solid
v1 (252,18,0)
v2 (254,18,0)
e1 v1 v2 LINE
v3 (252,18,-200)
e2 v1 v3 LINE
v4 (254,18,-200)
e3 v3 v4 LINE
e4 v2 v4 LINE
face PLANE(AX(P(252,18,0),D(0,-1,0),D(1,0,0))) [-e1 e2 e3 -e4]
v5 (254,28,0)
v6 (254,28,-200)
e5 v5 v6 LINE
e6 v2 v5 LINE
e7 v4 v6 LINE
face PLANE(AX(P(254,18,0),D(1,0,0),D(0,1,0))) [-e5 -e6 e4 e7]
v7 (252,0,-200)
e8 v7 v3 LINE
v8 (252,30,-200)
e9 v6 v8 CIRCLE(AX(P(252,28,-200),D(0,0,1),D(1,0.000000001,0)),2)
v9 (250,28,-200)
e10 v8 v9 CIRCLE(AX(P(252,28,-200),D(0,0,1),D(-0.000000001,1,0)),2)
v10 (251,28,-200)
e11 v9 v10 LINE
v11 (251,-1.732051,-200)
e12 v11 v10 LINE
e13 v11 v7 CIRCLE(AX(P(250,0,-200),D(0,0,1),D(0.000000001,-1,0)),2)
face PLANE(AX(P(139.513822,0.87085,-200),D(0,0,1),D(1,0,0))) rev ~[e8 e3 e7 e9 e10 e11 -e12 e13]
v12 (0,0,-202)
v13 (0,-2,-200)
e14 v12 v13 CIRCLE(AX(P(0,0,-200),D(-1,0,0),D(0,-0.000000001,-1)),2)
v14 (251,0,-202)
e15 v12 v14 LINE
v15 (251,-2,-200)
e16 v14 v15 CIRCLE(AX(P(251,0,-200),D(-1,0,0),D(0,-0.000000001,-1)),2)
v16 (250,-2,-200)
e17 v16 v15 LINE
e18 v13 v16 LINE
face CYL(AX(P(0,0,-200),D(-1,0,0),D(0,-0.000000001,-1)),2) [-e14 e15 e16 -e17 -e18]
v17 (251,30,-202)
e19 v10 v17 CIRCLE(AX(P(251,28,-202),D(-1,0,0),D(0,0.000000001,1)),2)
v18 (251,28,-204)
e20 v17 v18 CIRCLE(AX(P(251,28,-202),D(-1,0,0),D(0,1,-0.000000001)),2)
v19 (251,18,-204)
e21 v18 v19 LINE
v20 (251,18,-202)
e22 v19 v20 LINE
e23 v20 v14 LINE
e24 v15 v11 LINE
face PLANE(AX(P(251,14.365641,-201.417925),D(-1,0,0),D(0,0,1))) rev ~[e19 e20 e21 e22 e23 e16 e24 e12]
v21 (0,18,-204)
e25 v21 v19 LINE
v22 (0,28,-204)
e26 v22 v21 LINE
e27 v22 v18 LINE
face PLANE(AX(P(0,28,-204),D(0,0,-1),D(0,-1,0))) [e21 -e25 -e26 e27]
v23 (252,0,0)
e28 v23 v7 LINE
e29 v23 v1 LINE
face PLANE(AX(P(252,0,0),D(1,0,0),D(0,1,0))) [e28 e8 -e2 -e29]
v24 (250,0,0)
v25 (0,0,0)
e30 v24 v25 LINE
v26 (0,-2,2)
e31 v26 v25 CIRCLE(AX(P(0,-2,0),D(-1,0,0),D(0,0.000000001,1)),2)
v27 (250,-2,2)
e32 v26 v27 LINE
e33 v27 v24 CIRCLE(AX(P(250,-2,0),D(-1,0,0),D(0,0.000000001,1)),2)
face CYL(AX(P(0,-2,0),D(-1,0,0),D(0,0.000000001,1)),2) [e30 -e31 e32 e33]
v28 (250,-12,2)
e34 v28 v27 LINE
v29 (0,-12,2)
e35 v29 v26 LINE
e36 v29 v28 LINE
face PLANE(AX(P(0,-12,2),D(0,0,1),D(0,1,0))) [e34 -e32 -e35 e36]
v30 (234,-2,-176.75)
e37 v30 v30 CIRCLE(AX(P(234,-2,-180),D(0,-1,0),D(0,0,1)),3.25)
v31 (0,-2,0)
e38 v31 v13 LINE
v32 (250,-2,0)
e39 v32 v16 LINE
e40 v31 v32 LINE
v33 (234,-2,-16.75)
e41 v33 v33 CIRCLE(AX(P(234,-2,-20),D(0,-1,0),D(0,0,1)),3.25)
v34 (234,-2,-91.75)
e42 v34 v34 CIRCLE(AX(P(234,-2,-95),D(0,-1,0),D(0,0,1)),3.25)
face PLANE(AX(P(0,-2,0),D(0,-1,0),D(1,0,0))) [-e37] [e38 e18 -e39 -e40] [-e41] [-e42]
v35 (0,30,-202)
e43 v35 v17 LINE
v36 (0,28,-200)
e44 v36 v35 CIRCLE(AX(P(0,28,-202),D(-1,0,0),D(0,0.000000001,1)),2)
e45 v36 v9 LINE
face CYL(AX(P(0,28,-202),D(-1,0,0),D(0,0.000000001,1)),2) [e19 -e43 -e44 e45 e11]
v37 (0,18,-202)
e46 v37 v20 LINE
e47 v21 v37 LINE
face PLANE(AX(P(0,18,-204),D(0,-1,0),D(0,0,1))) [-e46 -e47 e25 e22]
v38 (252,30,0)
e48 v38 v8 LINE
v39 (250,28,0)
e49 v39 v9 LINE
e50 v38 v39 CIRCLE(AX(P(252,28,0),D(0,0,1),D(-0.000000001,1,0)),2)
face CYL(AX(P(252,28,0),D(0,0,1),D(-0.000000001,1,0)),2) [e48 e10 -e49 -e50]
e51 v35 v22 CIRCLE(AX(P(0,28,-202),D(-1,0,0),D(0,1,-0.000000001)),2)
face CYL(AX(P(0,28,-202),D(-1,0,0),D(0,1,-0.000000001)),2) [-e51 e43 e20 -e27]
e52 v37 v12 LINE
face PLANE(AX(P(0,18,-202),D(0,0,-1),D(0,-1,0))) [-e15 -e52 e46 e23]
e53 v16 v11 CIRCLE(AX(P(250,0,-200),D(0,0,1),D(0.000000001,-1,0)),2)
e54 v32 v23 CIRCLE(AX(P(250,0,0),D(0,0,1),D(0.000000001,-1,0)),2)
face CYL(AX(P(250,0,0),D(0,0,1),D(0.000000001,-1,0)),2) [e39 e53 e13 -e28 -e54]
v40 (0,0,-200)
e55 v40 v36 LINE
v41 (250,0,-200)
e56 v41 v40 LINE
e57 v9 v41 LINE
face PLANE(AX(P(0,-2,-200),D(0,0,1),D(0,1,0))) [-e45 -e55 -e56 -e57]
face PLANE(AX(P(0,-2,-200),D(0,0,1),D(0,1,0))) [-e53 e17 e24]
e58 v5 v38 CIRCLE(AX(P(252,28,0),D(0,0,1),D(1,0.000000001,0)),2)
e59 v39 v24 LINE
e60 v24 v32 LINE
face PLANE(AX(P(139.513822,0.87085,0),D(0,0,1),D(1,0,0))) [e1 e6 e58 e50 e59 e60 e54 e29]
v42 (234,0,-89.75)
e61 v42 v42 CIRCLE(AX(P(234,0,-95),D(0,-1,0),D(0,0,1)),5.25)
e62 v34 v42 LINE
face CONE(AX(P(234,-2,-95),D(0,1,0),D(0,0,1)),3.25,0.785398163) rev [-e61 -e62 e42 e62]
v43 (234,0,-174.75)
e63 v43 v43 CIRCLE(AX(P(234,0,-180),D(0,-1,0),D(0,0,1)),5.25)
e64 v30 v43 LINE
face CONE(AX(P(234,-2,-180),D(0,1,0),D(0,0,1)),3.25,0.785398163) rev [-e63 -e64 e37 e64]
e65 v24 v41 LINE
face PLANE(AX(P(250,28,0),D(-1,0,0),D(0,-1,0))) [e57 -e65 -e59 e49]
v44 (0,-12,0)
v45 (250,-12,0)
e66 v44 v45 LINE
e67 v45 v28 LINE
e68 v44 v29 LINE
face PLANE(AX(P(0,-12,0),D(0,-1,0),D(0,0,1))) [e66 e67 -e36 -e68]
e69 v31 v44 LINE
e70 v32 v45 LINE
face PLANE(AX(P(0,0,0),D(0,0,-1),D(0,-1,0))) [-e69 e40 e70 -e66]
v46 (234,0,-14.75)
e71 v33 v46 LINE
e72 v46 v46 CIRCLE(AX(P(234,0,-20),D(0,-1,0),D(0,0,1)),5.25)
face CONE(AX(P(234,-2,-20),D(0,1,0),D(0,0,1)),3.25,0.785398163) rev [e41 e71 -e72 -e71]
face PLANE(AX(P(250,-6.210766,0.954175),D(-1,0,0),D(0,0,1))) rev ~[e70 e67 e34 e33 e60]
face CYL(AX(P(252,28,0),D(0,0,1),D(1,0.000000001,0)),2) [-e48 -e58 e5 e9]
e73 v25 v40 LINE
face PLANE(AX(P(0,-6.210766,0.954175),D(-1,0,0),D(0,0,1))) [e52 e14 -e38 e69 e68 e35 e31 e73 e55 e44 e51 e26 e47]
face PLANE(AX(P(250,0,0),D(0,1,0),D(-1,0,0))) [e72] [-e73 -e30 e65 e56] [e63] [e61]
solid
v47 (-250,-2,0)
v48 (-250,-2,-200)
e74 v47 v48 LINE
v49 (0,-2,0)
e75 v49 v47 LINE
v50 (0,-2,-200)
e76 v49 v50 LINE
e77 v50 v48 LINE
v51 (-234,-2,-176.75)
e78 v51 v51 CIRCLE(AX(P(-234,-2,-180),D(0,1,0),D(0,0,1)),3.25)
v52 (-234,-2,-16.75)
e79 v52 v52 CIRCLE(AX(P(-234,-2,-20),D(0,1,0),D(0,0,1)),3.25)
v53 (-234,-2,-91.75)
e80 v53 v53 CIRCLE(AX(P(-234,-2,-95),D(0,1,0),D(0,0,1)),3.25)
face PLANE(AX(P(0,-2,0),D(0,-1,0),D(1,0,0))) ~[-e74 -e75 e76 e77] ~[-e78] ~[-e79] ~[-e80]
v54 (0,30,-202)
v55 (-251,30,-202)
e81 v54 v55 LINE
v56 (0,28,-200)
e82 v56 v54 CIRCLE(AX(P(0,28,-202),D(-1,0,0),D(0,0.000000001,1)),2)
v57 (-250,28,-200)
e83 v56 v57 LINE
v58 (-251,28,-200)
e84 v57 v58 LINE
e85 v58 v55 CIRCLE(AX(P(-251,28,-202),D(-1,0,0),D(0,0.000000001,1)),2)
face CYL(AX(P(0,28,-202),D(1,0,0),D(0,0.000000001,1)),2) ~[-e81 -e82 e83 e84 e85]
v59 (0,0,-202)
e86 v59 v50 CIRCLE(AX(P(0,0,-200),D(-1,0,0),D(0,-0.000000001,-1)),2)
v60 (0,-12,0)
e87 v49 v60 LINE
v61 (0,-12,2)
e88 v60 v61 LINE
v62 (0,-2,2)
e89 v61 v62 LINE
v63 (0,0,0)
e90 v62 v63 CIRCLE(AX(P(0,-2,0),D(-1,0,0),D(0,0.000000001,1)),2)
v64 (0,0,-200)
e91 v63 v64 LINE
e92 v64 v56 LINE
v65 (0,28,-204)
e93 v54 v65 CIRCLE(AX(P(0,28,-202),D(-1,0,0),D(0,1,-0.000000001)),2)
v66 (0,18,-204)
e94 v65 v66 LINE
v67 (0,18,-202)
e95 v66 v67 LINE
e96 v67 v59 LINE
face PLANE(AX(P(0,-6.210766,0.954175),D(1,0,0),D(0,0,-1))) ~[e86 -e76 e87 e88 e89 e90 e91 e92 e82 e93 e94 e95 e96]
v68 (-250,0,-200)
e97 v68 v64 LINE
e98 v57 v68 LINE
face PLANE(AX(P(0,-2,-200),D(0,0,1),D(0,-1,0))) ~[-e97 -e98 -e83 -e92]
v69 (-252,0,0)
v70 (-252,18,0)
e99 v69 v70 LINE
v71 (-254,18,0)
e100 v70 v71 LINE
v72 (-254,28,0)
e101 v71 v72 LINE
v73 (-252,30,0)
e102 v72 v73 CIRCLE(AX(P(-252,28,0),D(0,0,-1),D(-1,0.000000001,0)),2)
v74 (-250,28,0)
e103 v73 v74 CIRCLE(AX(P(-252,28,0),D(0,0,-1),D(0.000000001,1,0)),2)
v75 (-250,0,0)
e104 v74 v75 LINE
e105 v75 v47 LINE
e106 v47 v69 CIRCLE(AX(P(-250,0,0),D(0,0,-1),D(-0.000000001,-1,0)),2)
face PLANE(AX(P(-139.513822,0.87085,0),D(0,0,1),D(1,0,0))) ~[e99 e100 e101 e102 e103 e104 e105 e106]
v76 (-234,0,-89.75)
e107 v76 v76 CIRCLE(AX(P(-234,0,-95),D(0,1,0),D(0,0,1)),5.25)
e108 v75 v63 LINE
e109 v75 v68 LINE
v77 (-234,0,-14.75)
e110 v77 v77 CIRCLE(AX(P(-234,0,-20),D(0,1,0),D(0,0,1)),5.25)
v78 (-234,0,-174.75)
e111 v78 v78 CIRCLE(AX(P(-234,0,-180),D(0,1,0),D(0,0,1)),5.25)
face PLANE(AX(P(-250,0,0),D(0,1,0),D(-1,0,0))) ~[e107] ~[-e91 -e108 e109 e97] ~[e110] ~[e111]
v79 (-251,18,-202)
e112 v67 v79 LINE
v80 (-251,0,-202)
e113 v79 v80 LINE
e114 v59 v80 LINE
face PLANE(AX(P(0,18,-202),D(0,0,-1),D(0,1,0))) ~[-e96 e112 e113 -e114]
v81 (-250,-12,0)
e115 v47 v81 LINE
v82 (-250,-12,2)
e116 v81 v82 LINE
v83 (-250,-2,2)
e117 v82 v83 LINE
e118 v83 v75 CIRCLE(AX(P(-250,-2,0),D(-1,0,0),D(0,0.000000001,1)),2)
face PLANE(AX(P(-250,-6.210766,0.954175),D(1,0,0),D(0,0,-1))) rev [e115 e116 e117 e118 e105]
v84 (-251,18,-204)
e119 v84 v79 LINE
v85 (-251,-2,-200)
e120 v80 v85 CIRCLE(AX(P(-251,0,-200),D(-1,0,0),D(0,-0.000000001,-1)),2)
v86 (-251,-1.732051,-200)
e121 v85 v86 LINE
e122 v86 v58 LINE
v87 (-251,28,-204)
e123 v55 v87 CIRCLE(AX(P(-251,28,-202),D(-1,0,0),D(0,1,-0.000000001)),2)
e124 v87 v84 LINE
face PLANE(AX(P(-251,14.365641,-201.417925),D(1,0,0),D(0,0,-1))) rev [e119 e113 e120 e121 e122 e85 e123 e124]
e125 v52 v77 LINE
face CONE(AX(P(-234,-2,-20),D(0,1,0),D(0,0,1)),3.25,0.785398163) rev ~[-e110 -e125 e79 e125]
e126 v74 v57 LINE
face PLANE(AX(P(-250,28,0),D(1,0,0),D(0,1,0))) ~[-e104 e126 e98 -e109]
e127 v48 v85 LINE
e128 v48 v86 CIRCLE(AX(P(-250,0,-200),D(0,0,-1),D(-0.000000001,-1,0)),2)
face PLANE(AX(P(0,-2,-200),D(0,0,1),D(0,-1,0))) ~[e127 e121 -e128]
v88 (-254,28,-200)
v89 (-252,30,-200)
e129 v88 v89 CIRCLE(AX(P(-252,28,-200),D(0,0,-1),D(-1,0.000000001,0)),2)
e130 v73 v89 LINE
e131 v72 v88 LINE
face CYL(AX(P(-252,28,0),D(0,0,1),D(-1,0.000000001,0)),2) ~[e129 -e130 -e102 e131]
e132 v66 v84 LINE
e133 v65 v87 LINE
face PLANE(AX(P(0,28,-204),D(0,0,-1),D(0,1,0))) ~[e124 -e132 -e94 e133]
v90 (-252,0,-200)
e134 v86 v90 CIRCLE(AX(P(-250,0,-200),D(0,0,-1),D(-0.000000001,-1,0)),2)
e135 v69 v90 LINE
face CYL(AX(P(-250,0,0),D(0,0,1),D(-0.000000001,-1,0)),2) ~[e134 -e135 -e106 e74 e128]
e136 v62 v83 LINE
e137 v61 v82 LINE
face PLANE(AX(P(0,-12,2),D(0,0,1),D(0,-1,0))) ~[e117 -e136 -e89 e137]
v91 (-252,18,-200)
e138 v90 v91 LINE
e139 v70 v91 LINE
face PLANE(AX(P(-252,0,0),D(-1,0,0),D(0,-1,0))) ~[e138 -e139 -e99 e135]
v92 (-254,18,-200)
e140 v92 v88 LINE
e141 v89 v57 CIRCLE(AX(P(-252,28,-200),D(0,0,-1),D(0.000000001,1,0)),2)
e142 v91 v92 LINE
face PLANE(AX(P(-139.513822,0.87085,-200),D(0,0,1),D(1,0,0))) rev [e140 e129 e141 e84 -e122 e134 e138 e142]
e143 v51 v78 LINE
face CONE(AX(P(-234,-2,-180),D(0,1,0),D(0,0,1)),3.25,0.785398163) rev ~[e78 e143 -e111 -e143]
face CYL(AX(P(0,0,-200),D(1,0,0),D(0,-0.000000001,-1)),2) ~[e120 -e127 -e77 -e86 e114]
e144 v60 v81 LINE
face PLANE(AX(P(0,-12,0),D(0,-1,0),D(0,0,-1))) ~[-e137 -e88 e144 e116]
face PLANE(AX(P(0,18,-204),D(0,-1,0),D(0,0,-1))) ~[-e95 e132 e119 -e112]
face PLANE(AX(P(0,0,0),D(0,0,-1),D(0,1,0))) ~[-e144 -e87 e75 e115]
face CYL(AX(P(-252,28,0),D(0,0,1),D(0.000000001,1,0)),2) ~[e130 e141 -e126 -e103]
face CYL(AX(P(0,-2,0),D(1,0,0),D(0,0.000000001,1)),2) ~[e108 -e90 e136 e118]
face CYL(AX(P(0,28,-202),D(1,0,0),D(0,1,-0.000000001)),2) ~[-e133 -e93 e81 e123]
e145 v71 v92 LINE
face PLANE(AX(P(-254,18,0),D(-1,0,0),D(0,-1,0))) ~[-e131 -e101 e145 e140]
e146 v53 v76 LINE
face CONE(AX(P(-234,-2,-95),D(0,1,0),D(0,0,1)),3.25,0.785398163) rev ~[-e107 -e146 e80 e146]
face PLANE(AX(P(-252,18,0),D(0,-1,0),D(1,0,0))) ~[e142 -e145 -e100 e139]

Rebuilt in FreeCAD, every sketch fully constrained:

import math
import FreeCAD as App
import Part
import Sketcher
from FreeCAD import Vector
Q = App.Units.Quantity

doc = App.newDocument("Part")
body = doc.addObject("PartDesign::Body", "Body")

sketch1 = doc.addObject("Sketcher::SketchObject", "Sketch")
body.addObject(sketch1)
sketch1.AttachmentSupport = (doc.XY_Plane, [""])
sketch1.MapMode = "FlatFace"
sketch1.addGeometry([
    Part.LineSegment(Vector(0, 0, 0), Vector(0, -2, 0)),
    Part.LineSegment(Vector(0, -2, 0), Vector(250, -2, 0)),
    Part.ArcOfCircle(Part.Circle(Vector(250, 0, 0), Vector(0, 0, 1), 2), math.radians(-90), math.radians(0)),
    Part.LineSegment(Vector(252, 0, 0), Vector(252, 18, 0)),
    Part.LineSegment(Vector(252, 18, 0), Vector(254, 18, 0)),
    Part.LineSegment(Vector(254, 18, 0), Vector(254, 28, 0)),
    Part.ArcOfCircle(Part.Circle(Vector(252, 28, 0), Vector(0, 0, 1), 2), math.radians(0), math.radians(90)),
    Part.ArcOfCircle(Part.Circle(Vector(252, 28, 0), Vector(0, 0, 1), 2), math.radians(90), math.radians(180)),
    Part.LineSegment(Vector(250, 28, 0), Vector(250, 0, 0)),
    Part.LineSegment(Vector(250, 0, 0), Vector(0, 0, 0)),
], False)
sketch1.addConstraint([
    Sketcher.Constraint("Coincident", 0, 2, 1, 1),
    Sketcher.Constraint("Tangent", 1, 2, 2, 1),
    Sketcher.Constraint("Tangent", 2, 2, 3, 1),
    Sketcher.Constraint("Coincident", 3, 2, 4, 1),
    Sketcher.Constraint("Coincident", 4, 2, 5, 1),
    Sketcher.Constraint("Tangent", 5, 2, 6, 1),
    Sketcher.Constraint("Tangent", 6, 2, 7, 1),
    Sketcher.Constraint("Tangent", 7, 2, 8, 1),
    Sketcher.Constraint("Coincident", 8, 2, 9, 1),
    Sketcher.Constraint("Coincident", 9, 2, 0, 1),
    Sketcher.Constraint("Vertical", 0),
    Sketcher.Constraint("Horizontal", 1),
    Sketcher.Constraint("Vertical", 3),
    Sketcher.Constraint("Horizontal", 4),
    Sketcher.Constraint("Vertical", 5),
    Sketcher.Constraint("Vertical", 8),
    Sketcher.Constraint("Horizontal", 9),
    Sketcher.Constraint("Coincident", 9, 2, -1, 1),
    Sketcher.Constraint("Coincident", 8, 2, 2, 3),
    Sketcher.Constraint("Equal", 2, 6),
    Sketcher.Constraint("Equal", 6, 7),
    Sketcher.Constraint("Vertical", 3, 2, 6, 2),
    Sketcher.Constraint("Radius", 2, 2.0),
    Sketcher.Constraint("DistanceX", 1, 1, 1, 2, 250.0),
    Sketcher.Constraint("DistanceY", 3, 1, 3, 2, 18.0),
    Sketcher.Constraint("DistanceY", 5, 1, 5, 2, 10.0),
])
pad1 = doc.addObject("PartDesign::Pad", "Pad")
body.addObject(pad1)
pad1.Profile = sketch1
pad1.Length = 200
pad1.Reversed = True

sketch2 = doc.addObject("Sketcher::SketchObject", "Sketch001")
body.addObject(sketch2)
sketch2.AttachmentSupport = (doc.YZ_Plane, [""])
sketch2.MapMode = "FlatFace"
sketch2.addGeometry([
    Part.LineSegment(Vector(-2, -200, 0), Vector(28, -200, 0)),
    Part.ArcOfCircle(Part.Circle(Vector(28, -202, 0), Vector(0, 0, 1), 2), math.radians(0), math.radians(90)),
    Part.ArcOfCircle(Part.Circle(Vector(28, -202, 0), Vector(0, 0, 1), 2), math.radians(-90), math.radians(0)),
    Part.LineSegment(Vector(28, -204, 0), Vector(18, -204, 0)),
    Part.LineSegment(Vector(18, -204, 0), Vector(18, -202, 0)),
    Part.LineSegment(Vector(18, -202, 0), Vector(0, -202, 0)),
    Part.ArcOfCircle(Part.Circle(Vector(0, -200, 0), Vector(0, 0, 1), 2), math.radians(-180), math.radians(-90)),
], False)
sketch2.addConstraint([
    Sketcher.Constraint("Tangent", 0, 2, 1, 2),
    Sketcher.Constraint("Tangent", 1, 1, 2, 2),
    Sketcher.Constraint("Tangent", 2, 1, 3, 1),
    Sketcher.Constraint("Coincident", 3, 2, 4, 1),
    Sketcher.Constraint("Coincident", 4, 2, 5, 1),
    Sketcher.Constraint("Tangent", 5, 2, 6, 2),
    Sketcher.Constraint("Coincident", 6, 1, 0, 1),
    Sketcher.Constraint("Horizontal", 0),
    Sketcher.Constraint("Horizontal", 3),
    Sketcher.Constraint("Vertical", 4),
    Sketcher.Constraint("Horizontal", 5),
    Sketcher.Constraint("Equal", 1, 2),
    Sketcher.Constraint("Equal", 2, 6),
    Sketcher.Constraint("PointOnObject", 6, 3, -2),
    Sketcher.Constraint("Horizontal", 6, 3, 0, 2),
    Sketcher.Constraint("Horizontal", 2, 3, 1, 1),
    Sketcher.Constraint("Radius", 1, 2.0),
    Sketcher.Constraint("DistanceX", 0, 1, 0, 2, 30.0),
    Sketcher.Constraint("DistanceX", 3, 2, 3, 1, 10.0),
    Sketcher.Constraint("DistanceY", 1, 3, -1, 1, 202.0),
])
pad2 = doc.addObject("PartDesign::Pad", "Pad001")
body.addObject(pad2)
pad2.Profile = sketch2
pad2.Length = 251

sketch3 = doc.addObject("Sketcher::SketchObject", "Sketch002")
body.addObject(sketch3)
sketch3.AttachmentSupport = (doc.YZ_Plane, [""])
sketch3.MapMode = "FlatFace"
sketch3.addGeometry([
    Part.LineSegment(Vector(0, 0, 0), Vector(-12, 0, 0)),
    Part.LineSegment(Vector(-12, 0, 0), Vector(-12, 2, 0)),
    Part.LineSegment(Vector(-12, 2, 0), Vector(-2, 2, 0)),
    Part.ArcOfCircle(Part.Circle(Vector(-2, 0, 0), Vector(0, 0, 1), 2), math.radians(0), math.radians(90)),
], False)
sketch3.addConstraint([
    Sketcher.Constraint("Coincident", 0, 2, 1, 1),
    Sketcher.Constraint("Coincident", 1, 2, 2, 1),
    Sketcher.Constraint("Tangent", 2, 2, 3, 2),
    Sketcher.Constraint("Coincident", 3, 1, 0, 1),
    Sketcher.Constraint("Horizontal", 0),
    Sketcher.Constraint("Vertical", 1),
    Sketcher.Constraint("Horizontal", 2),
    Sketcher.Constraint("Coincident", 3, 1, -1, 1),
    Sketcher.Constraint("PointOnObject", 3, 3, -1),
    Sketcher.Constraint("Radius", 3, 2.0),
    Sketcher.Constraint("DistanceX", 0, 2, 0, 1, 12.0),
])
pad3 = doc.addObject("PartDesign::Pad", "Pad002")
body.addObject(pad3)
pad3.Profile = sketch3
pad3.Length = 250

sketch4 = doc.addObject("Sketcher::SketchObject", "Sketch003")
body.addObject(sketch4)
sketch4.AttachmentSupport = (doc.YZ_Plane, [""])
sketch4.MapMode = "FlatFace"
sketch4.AttachmentOffset = App.Placement(Vector(0, 0, 234), App.Rotation())
sketch4.addGeometry([
    Part.LineSegment(Vector(-2, -20, 0), Vector(0, -20, 0)),
    Part.LineSegment(Vector(0, -20, 0), Vector(0, -25.2, 0)),
    Part.LineSegment(Vector(0, -25.2, 0), Vector(-2, -23.2, 0)),
    Part.LineSegment(Vector(-2, -23.2, 0), Vector(-2, -20, 0)),
], False)
sketch4.addGeometry(Part.LineSegment(Vector(0, -20, 0), Vector(-2, -20, 0)), True)
sketch4.addConstraint([
    Sketcher.Constraint("Coincident", 0, 2, 1, 1),
    Sketcher.Constraint("Coincident", 1, 2, 2, 1),
    Sketcher.Constraint("Coincident", 2, 2, 3, 1),
    Sketcher.Constraint("Coincident", 3, 2, 0, 1),
    Sketcher.Constraint("Horizontal", 0),
    Sketcher.Constraint("Vertical", 1),
    Sketcher.Constraint("Vertical", 3),
    Sketcher.Constraint("Horizontal", 4),
    Sketcher.Constraint("Coincident", 4, 1, 0, 2),
    Sketcher.Constraint("PointOnObject", 0, 2, -2),
    Sketcher.Constraint("Vertical", 2, 2, 4, 2),
    Sketcher.Constraint("DistanceX", 0, 1, 0, 2, 2.0),
    Sketcher.Constraint("Angle", 2, Q("135 deg")),
    Sketcher.Constraint("DistanceY", 0, 2, -1, 1, 20.0),
    Sketcher.Constraint("DistanceY", 1, 2, 1, 1, 5.25),
])
groove = doc.addObject("PartDesign::Groove", "Groove")
body.addObject(groove)
groove.Profile = sketch4
groove.ReferenceAxis = (sketch4, ["Axis0"])
groove.Angle = 360

sketch5 = doc.addObject("Sketcher::SketchObject", "Sketch004")
body.addObject(sketch5)
sketch5.AttachmentSupport = (doc.YZ_Plane, [""])
sketch5.MapMode = "FlatFace"
sketch5.AttachmentOffset = App.Placement(Vector(0, 0, 234), App.Rotation())
sketch5.addGeometry([
    Part.LineSegment(Vector(-2, -180, 0), Vector(0, -180, 0)),
    Part.LineSegment(Vector(0, -180, 0), Vector(0, -185.2, 0)),
    Part.LineSegment(Vector(0, -185.2, 0), Vector(-2, -183.2, 0)),
    Part.LineSegment(Vector(-2, -183.2, 0), Vector(-2, -180, 0)),
], False)
sketch5.addGeometry(Part.LineSegment(Vector(0, -180, 0), Vector(-2, -180, 0)), True)
sketch5.addConstraint([
    Sketcher.Constraint("Coincident", 0, 2, 1, 1),
    Sketcher.Constraint("Coincident", 1, 2, 2, 1),
    Sketcher.Constraint("Coincident", 2, 2, 3, 1),
    Sketcher.Constraint("Coincident", 3, 2, 0, 1),
    Sketcher.Constraint("Horizontal", 0),
    Sketcher.Constraint("Vertical", 1),
    Sketcher.Constraint("Vertical", 3),
    Sketcher.Constraint("Horizontal", 4),
    Sketcher.Constraint("Coincident", 4, 1, 0, 2),
    Sketcher.Constraint("PointOnObject", 0, 2, -2),
    Sketcher.Constraint("Vertical", 2, 2, 4, 2),
    Sketcher.Constraint("DistanceX", 0, 1, 0, 2, 2.0),
    Sketcher.Constraint("Angle", 2, Q("135 deg")),
    Sketcher.Constraint("DistanceY", 0, 2, -1, 1, 180.0),
    Sketcher.Constraint("DistanceY", 1, 2, 1, 1, 5.25),
])
groove2 = doc.addObject("PartDesign::Groove", "Groove001")
body.addObject(groove2)
groove2.Profile = sketch5
groove2.ReferenceAxis = (sketch5, ["Axis0"])
groove2.Angle = 360

sketch6 = doc.addObject("Sketcher::SketchObject", "Sketch005")
body.addObject(sketch6)
sketch6.AttachmentSupport = (doc.YZ_Plane, [""])
sketch6.MapMode = "FlatFace"
sketch6.AttachmentOffset = App.Placement(Vector(0, 0, 234), App.Rotation())
sketch6.addGeometry([
    Part.LineSegment(Vector(-2, -95, 0), Vector(0, -95, 0)),
    Part.LineSegment(Vector(0, -95, 0), Vector(0, -100.2, 0)),
    Part.LineSegment(Vector(0, -100.2, 0), Vector(-2, -98.2, 0)),
    Part.LineSegment(Vector(-2, -98.2, 0), Vector(-2, -95, 0)),
], False)
sketch6.addGeometry(Part.LineSegment(Vector(0, -95, 0), Vector(-2, -95, 0)), True)
sketch6.addConstraint([
    Sketcher.Constraint("Coincident", 0, 2, 1, 1),
    Sketcher.Constraint("Coincident", 1, 2, 2, 1),
    Sketcher.Constraint("Coincident", 2, 2, 3, 1),
    Sketcher.Constraint("Coincident", 3, 2, 0, 1),
    Sketcher.Constraint("Horizontal", 0),
    Sketcher.Constraint("Vertical", 1),
    Sketcher.Constraint("Vertical", 3),
    Sketcher.Constraint("Horizontal", 4),
    Sketcher.Constraint("Coincident", 4, 1, 0, 2),
    Sketcher.Constraint("PointOnObject", 0, 2, -2),
    Sketcher.Constraint("Vertical", 2, 2, 4, 2),
    Sketcher.Constraint("DistanceX", 0, 1, 0, 2, 2.0),
    Sketcher.Constraint("Angle", 2, Q("135 deg")),
    Sketcher.Constraint("DistanceY", 0, 2, -1, 1, 95.0),
    Sketcher.Constraint("DistanceY", 1, 2, 1, 1, 5.25),
])
groove3 = doc.addObject("PartDesign::Groove", "Groove002")
body.addObject(groove3)
groove3.Profile = sketch6
groove3.ReferenceAxis = (sketch6, ["Axis0"])
groove3.Angle = 360
body2 = doc.addObject("PartDesign::Body", "Body001")
doc.recompute()

mirroring = doc.addObject("Part::Mirroring", "Mirroring")
mirroring.Source = body
mirroring.Base = Vector(0, -1, -120)
mirroring.Normal = Vector(-1, 0, 0)
body2.BaseFeature = mirroring
doc.recompute()
mirroring.Visibility = False

doc.recompute()
